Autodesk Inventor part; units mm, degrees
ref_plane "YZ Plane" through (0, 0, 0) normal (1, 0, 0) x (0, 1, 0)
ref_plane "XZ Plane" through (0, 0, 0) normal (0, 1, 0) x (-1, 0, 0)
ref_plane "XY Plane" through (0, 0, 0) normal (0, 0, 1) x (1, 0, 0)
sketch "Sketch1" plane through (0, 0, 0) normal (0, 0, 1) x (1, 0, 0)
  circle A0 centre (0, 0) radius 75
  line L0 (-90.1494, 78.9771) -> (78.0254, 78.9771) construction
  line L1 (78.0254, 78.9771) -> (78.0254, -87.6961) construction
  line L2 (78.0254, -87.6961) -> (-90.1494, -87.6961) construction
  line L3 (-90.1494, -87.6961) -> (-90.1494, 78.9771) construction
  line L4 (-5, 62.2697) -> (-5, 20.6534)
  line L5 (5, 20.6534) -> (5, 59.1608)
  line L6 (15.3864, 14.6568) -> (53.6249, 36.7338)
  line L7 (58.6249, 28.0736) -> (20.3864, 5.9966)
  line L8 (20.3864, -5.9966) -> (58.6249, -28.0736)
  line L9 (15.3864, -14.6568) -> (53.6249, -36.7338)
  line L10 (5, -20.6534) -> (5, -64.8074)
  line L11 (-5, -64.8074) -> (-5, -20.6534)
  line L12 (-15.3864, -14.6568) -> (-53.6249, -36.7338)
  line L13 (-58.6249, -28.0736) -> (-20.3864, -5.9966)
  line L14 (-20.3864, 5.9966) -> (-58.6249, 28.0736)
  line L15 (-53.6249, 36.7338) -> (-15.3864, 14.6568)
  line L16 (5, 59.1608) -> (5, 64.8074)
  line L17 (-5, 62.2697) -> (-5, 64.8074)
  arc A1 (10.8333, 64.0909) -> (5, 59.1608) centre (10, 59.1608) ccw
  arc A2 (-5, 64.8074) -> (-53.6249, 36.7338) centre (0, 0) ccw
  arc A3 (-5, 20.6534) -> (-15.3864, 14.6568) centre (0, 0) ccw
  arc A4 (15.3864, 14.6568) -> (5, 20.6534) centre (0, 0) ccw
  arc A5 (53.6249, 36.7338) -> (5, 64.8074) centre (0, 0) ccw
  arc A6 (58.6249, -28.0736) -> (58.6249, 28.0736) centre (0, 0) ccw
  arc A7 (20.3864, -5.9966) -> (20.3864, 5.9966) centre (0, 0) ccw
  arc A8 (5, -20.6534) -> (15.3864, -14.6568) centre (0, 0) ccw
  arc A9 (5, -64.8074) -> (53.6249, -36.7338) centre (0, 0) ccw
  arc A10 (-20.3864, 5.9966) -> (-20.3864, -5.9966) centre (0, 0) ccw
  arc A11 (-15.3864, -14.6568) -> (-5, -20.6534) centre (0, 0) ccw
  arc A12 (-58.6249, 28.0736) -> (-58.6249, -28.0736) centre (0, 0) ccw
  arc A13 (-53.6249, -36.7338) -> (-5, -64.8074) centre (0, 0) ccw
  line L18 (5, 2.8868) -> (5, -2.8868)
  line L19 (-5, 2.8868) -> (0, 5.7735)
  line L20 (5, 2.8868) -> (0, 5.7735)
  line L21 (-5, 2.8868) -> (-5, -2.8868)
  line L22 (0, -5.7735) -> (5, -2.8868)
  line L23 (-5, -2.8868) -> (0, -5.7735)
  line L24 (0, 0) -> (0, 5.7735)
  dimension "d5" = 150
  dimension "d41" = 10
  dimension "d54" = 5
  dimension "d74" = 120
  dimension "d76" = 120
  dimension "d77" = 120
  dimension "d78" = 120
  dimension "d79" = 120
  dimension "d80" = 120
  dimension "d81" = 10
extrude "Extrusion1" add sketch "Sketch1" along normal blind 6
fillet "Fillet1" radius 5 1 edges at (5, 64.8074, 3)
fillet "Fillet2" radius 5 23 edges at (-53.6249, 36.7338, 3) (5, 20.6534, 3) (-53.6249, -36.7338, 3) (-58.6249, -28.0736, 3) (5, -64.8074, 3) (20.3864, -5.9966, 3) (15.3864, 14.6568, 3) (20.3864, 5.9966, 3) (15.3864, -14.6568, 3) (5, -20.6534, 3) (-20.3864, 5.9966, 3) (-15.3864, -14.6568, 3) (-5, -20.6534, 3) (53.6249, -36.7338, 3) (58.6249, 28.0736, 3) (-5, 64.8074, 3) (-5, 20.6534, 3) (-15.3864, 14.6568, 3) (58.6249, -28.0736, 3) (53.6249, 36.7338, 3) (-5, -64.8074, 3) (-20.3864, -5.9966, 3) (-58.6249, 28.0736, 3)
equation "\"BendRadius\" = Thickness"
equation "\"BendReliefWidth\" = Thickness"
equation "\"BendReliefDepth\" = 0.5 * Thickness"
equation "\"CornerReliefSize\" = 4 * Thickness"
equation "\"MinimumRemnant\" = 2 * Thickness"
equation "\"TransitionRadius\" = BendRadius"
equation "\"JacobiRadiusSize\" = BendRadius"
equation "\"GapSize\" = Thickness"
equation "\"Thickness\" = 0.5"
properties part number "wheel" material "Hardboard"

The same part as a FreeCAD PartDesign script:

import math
import FreeCAD as App
import Part
import Sketcher
from FreeCAD import Vector
Q = App.Units.Quantity


def edges_at(feature, points):
    """Names of the edges that pass closest to the given points."""
    edges = feature.Shape.Edges
    near = lambda p: min(range(len(edges)), key=lambda i: edges[i].distToShape(Part.Vertex(*p))[0])
    return sorted({f"Edge{near(p) + 1}" for p in points})


def add_polygon(sketch, points):
    """Adds a closed chain of lines whose ends are joined by coincident constraints."""
    first, n = sketch.GeometryCount, len(points)
    for a, b in zip(points, points[1:] + points[:1]):
        sketch.addGeometry(Part.LineSegment(App.Vector(*a, 0), App.Vector(*b, 0)), False)
    for i in range(n):
        sketch.addConstraint(Sketcher.Constraint("Coincident", first + i, 2, first + (i + 1) % n, 1))

doc = App.newDocument("Part")
body = doc.addObject("PartDesign::Body", "Body")

# Sketch on XY plane
sketch1 = body.newObject("Sketcher::SketchObject", "Sketch")
sketch1.AttachmentSupport = (doc.getObject("XY_Plane"), [""])
sketch1.MapMode = "FlatFace"
sketch1.addGeometry(Part.Circle(Vector(0, 0, 0), Vector(0, 0, 1), 75), False)  # 0
sketch1.addGeometry(Part.LineSegment(Vector(-5, -21, 0), Vector(-5, -65, 0)), False)  # 1
sketch1.addGeometry(Part.ArcOfCircle(Part.Circle(Vector(0, 0, 0), Vector(0, 0, 1), 65), math.radians(-146), math.radians(-94)), False)  # 2
sketch1.addGeometry(Part.LineSegment(Vector(-54, -37, 0), Vector(-15, -15, 0)), False)  # 3
sketch1.addGeometry(Part.ArcOfCircle(Part.Circle(Vector(0, 0, 0), Vector(0, 0, 1), 21), math.radians(-136), math.radians(-104)), False)  # 4
sketch1.addGeometry(Part.ArcOfCircle(Part.Circle(Vector(0, 0, 0), Vector(0, 0, 1), 21), math.radians(-76), math.radians(-44)), False)  # 5
sketch1.addGeometry(Part.LineSegment(Vector(15, -15, 0), Vector(54, -37, 0)), False)  # 6
sketch1.addGeometry(Part.ArcOfCircle(Part.Circle(Vector(0, 0, 0), Vector(0, 0, 1), 65), math.radians(-86), math.radians(-34)), False)  # 7
sketch1.addGeometry(Part.LineSegment(Vector(5, -65, 0), Vector(5, -21, 0)), False)  # 8
sketch1.addGeometry(Part.LineSegment(Vector(-20, -6, 0), Vector(-59, -28, 0)), False)  # 9
sketch1.addGeometry(Part.ArcOfCircle(Part.Circle(Vector(0, 0, 0), Vector(0, 0, 1), 65), math.radians(154), math.radians(206)), False)  # 10
sketch1.addGeometry(Part.LineSegment(Vector(-59, 28, 0), Vector(-20, 6, 0)), False)  # 11
sketch1.addGeometry(Part.ArcOfCircle(Part.Circle(Vector(0, 0, 0), Vector(0, 0, 1), 21), math.radians(164), math.radians(196)), False)  # 12
sketch1.addGeometry(Part.LineSegment(Vector(-5, 65, 0), Vector(-5, 21, 0)), False)  # 13
sketch1.addGeometry(Part.ArcOfCircle(Part.Circle(Vector(0, 0, 0), Vector(0, 0, 1), 21), math.radians(104), math.radians(136)), False)  # 14
sketch1.addGeometry(Part.LineSegment(Vector(-15, 15, 0), Vector(-54, 37, 0)), False)  # 15
sketch1.addGeometry(Part.ArcOfCircle(Part.Circle(Vector(0, 0, 0), Vector(0, 0, 1), 65), math.radians(94), math.radians(146)), False)  # 16
add_polygon(sketch1, [(0, 6), (5, 3), (5, -3), (0, -6), (-5, -3), (-5, 3)])  # lines 17-22
sketch1.addGeometry(Part.LineSegment(Vector(20, 6, 0), Vector(59, 28, 0)), False)  # 23
sketch1.addGeometry(Part.ArcOfCircle(Part.Circle(Vector(0, 0, 0), Vector(0, 0, 1), 65), math.radians(-26), math.radians(26)), False)  # 24
sketch1.addGeometry(Part.LineSegment(Vector(59, -28, 0), Vector(20, -6, 0)), False)  # 25
sketch1.addGeometry(Part.ArcOfCircle(Part.Circle(Vector(0, 0, 0), Vector(0, 0, 1), 21), math.radians(-16), math.radians(16)), False)  # 26
sketch1.addGeometry(Part.ArcOfCircle(Part.Circle(Vector(0, 0, 0), Vector(0, 0, 1), 21), math.radians(44), math.radians(76)), False)  # 27
sketch1.addGeometry(Part.LineSegment(Vector(5, 21, 0), Vector(5, 65, 0)), False)  # 28
sketch1.addGeometry(Part.ArcOfCircle(Part.Circle(Vector(0, 0, 0), Vector(0, 0, 1), 65), math.radians(34), math.radians(86)), False)  # 29
sketch1.addGeometry(Part.LineSegment(Vector(54, 37, 0), Vector(15, 15, 0)), False)  # 30
sketch1.addConstraint([
    Sketcher.Constraint("Coincident", 1, 2, 2, 2),
    Sketcher.Constraint("Coincident", 2, 1, 3, 1),
    Sketcher.Constraint("Coincident", 3, 2, 4, 1),
    Sketcher.Constraint("Coincident", 4, 2, 1, 1),
    Sketcher.Constraint("Coincident", 5, 2, 6, 1),
    Sketcher.Constraint("Coincident", 6, 2, 7, 2),
    Sketcher.Constraint("Coincident", 7, 1, 8, 1),
    Sketcher.Constraint("Coincident", 8, 2, 5, 1),
    Sketcher.Constraint("Coincident", 9, 2, 10, 2),
    Sketcher.Constraint("Coincident", 10, 1, 11, 1),
    Sketcher.Constraint("Coincident", 11, 2, 12, 1),
    Sketcher.Constraint("Coincident", 12, 2, 9, 1),
    Sketcher.Constraint("Coincident", 13, 2, 14, 1),
    Sketcher.Constraint("Coincident", 14, 2, 15, 1),
    Sketcher.Constraint("Coincident", 15, 2, 16, 2),
    Sketcher.Constraint("Coincident", 16, 1, 13, 1),
    Sketcher.Constraint("Coincident", 23, 2, 24, 2),
    Sketcher.Constraint("Coincident", 24, 1, 25, 1),
    Sketcher.Constraint("Coincident", 25, 2, 26, 1),
    Sketcher.Constraint("Coincident", 26, 2, 23, 1),
    Sketcher.Constraint("Coincident", 27, 2, 28, 1),
    Sketcher.Constraint("Coincident", 28, 2, 29, 2),
    Sketcher.Constraint("Coincident", 29, 1, 30, 1),
    Sketcher.Constraint("Coincident", 30, 2, 27, 1),
    Sketcher.Constraint("Vertical", 1),
    Sketcher.Constraint("Vertical", 8),
    Sketcher.Constraint("Vertical", 13),
    Sketcher.Constraint("Vertical", 18),
    Sketcher.Constraint("Vertical", 21),
    Sketcher.Constraint("Vertical", 28),
    Sketcher.Constraint("Coincident", 0, 3, -1, 1),
    Sketcher.Constraint("Coincident", 2, 3, -1, 1),
    Sketcher.Constraint("Coincident", 4, 3, -1, 1),
    Sketcher.Constraint("Coincident", 5, 3, -1, 1),
    Sketcher.Constraint("Coincident", 7, 3, -1, 1),
    Sketcher.Constraint("Coincident", 10, 3, -1, 1),
    Sketcher.Constraint("Coincident", 12, 3, -1, 1),
    Sketcher.Constraint("Coincident", 14, 3, -1, 1),
    Sketcher.Constraint("Coincident", 16, 3, -1, 1),
    Sketcher.Constraint("Coincident", 24, 3, -1, 1),
    Sketcher.Constraint("Coincident", 26, 3, -1, 1),
    Sketcher.Constraint("Coincident", 27, 3, -1, 1),
    Sketcher.Constraint("Coincident", 29, 3, -1, 1),
    Sketcher.Constraint("Equal", 4, 5),
    Sketcher.Constraint("Equal", 2, 7),
    Sketcher.Constraint("Equal", 7, 10),
    Sketcher.Constraint("Equal", 5, 12),
    Sketcher.Constraint("Equal", 12, 14),
    Sketcher.Constraint("Equal", 10, 16),
    Sketcher.Constraint("Equal", 16, 24),
    Sketcher.Constraint("Equal", 14, 26),
    Sketcher.Constraint("Equal", 26, 27),
    Sketcher.Constraint("Equal", 24, 29),
    Sketcher.Constraint("Symmetric", 17, 2, 20, 2, -1, 1),
    Sketcher.Constraint("Symmetric", 19, 2, 22, 2, -1, 1),
    Sketcher.Constraint("PointOnObject", 19, 2, -2),
    Sketcher.Constraint("Parallel", 3, 9),
    Sketcher.Constraint("Parallel", 6, 11),
    Sketcher.Constraint("Parallel", 11, 15),
    Sketcher.Constraint("Parallel", 15, 17),
    Sketcher.Constraint("Parallel", 9, 19),
    Sketcher.Constraint("Parallel", 19, 22),
    Sketcher.Constraint("Parallel", 22, 23),
    Sketcher.Constraint("Parallel", 20, 25),
    Sketcher.Constraint("Parallel", 23, 30),
    Sketcher.Constraint("Horizontal", 3, 2, 5, 2),
    Sketcher.Constraint("Horizontal", 2, 1, 6, 2),
    Sketcher.Constraint("Horizontal", 1, 2, 7, 1),
    Sketcher.Constraint("Horizontal", 10, 1, 23, 2),
    Sketcher.Constraint("Horizontal", 9, 2, 24, 1),
    Sketcher.Constraint("Horizontal", 13, 2, 27, 2),
    Sketcher.Constraint("Horizontal", 15, 2, 29, 1),
    Sketcher.Constraint("Vertical", 9, 2, 10, 1),
    Sketcher.Constraint("Vertical", 4, 2, 13, 2),
    Sketcher.Constraint("Vertical", 3, 2, 14, 2),
    Sketcher.Constraint("Vertical", 8, 2, 17, 2),
    Sketcher.Constraint("Equal", 6, 9),
    Sketcher.Constraint("Diameter", 0, Q("150 mm")),
    Sketcher.Constraint("Angle", 9, Q("-150 deg")),
    Sketcher.Constraint("DistanceX", 1, 2, -1, 1, Q("5 mm")),
    Sketcher.Constraint("Radius", 2, Q("65 mm")),
    Sketcher.Constraint("DistanceX", 9, 2, 2, 1, Q("5 mm")),
    Sketcher.Constraint("Radius", 4, Q("21.25 mm")),
    Sketcher.Constraint("DistanceY", 22, 2, 23, 2, Q("22.3 mm")),
])
pad1 = body.newObject("PartDesign::Pad", "Pad")
pad1.Profile = sketch1
pad1.Length = 6
doc.recompute()

fillet = body.newObject("PartDesign::Fillet", "Fillet")
fillet.Base = (pad1, edges_at(pad1, [(5, 64.807, 3)]))
fillet.Radius = 5
doc.recompute()

fillet2 = body.newObject("PartDesign::Fillet", "Fillet001")
fillet2.Base = (fillet, edges_at(fillet, [
    (-53.625, 36.734, 3),
    (5, 20.653, 3),
    (-53.625, -36.734, 3),
    (-58.625, -28.074, 3),
    (5, -64.807, 3),
    (20.386, -5.997, 3),
    (15.386, 14.657, 3),
    (20.386, 5.997, 3),
    (15.386, -14.657, 3),
    (5, -20.653, 3),
    (-20.386, 5.997, 3),
    (-15.386, -14.657, 3),
    (-5, -20.653, 3),
    (53.625, -36.734, 3),
    (58.625, 28.074, 3),
    (-5, 64.807, 3),
    (-5, 20.653, 3),
    (-15.386, 14.657, 3),
    (58.625, -28.074, 3),
    (53.625, 36.734, 3),
    (-5, -64.807, 3),
    (-20.386, -5.997, 3),
    (-58.625, 28.074, 3),
]))
fillet2.Radius = 5

doc.recompute()
